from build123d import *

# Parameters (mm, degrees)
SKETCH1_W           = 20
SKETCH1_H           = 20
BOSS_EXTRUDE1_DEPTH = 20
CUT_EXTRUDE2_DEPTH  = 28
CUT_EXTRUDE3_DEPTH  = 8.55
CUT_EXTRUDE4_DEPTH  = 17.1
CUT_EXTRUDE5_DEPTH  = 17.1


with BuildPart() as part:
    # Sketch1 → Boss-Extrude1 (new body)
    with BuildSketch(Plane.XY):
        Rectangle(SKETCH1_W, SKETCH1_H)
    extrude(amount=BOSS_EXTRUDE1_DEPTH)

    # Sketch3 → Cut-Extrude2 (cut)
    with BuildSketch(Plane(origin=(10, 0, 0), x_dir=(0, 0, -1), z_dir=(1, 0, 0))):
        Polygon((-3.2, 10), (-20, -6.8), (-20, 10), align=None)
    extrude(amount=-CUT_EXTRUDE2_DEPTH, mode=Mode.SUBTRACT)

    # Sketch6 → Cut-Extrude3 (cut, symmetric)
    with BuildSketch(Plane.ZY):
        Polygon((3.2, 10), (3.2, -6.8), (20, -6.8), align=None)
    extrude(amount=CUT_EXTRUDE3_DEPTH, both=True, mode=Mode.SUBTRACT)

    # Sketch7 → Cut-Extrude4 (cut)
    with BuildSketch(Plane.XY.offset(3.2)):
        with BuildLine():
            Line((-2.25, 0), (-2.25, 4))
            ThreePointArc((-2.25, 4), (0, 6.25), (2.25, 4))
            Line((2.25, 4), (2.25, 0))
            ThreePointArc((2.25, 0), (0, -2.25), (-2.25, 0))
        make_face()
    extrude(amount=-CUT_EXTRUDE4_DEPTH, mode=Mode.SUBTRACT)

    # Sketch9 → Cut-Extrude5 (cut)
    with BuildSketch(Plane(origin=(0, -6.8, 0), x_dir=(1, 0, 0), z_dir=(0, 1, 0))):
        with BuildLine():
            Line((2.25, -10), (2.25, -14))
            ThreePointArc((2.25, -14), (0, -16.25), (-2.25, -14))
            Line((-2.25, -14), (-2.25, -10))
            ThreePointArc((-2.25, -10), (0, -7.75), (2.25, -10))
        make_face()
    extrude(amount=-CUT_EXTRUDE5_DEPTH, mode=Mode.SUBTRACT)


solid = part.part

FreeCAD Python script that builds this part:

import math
import FreeCAD as App
import Part
import Sketcher
from FreeCAD import Vector
Q = App.Units.Quantity

doc = App.newDocument("Part")
body = doc.addObject("PartDesign::Body", "Body")

# Sketch on XY plane
sketch1 = doc.addObject("Sketcher::SketchObject", "Sketch")
body.addObject(sketch1)
sketch1.AttachmentSupport = (doc.XY_Plane, [""])
sketch1.MapMode = "FlatFace"
sketch1.addGeometry([
    Part.LineSegment(Vector(-10, 10, 0), Vector(-10, -10, 0)),
    Part.LineSegment(Vector(-10, -10, 0), Vector(10, -10, 0)),
    Part.LineSegment(Vector(10, -10, 0), Vector(10, 10, 0)),
    Part.LineSegment(Vector(10, 10, 0), Vector(-10, 10, 0)),
], False)
sketch1.addConstraint([
    Sketcher.Constraint("Coincident", 0, 2, 1, 1),
    Sketcher.Constraint("Coincident", 1, 2, 2, 1),
    Sketcher.Constraint("Coincident", 2, 2, 3, 1),
    Sketcher.Constraint("Coincident", 3, 2, 0, 1),
    Sketcher.Constraint("Vertical", 0),
    Sketcher.Constraint("Horizontal", 1),
    Sketcher.Constraint("Vertical", 2),
    Sketcher.Constraint("Horizontal", 3),
    Sketcher.Constraint("Symmetric", 0, 2, 2, 2, -1, 1),
    Sketcher.Constraint("Equal", 3, 0),
    Sketcher.Constraint("DistanceX", 1, 1, 1, 2, Q("20 mm")),
])
pad1 = doc.addObject("PartDesign::Pad", "Pad")
body.addObject(pad1)
pad1.Profile = sketch1
pad1.Length = 20

# Sketch on YZ plane
sketch2 = doc.addObject("Sketcher::SketchObject", "Sketch001")
body.addObject(sketch2)
sketch2.AttachmentSupport = (doc.YZ_Plane, [""])
sketch2.MapMode = "FlatFace"
sketch2.AttachmentOffset = App.Placement(Vector(0, 0, 10), App.Rotation())
sketch2.addGeometry([
    Part.LineSegment(Vector(-7, 20, 0), Vector(10, 3, 0)),
    Part.LineSegment(Vector(10, 3, 0), Vector(10, 20, 0)),
    Part.LineSegment(Vector(10, 20, 0), Vector(-7, 20, 0)),
], False)
sketch2.addConstraint([
    Sketcher.Constraint("Coincident", 0, 2, 1, 1),
    Sketcher.Constraint("Coincident", 1, 2, 2, 1),
    Sketcher.Constraint("Coincident", 2, 2, 0, 1),
    Sketcher.Constraint("Vertical", 1),
    Sketcher.Constraint("Horizontal", 2),
    Sketcher.Constraint("Equal", 2, 1),
    Sketcher.Constraint("DistanceX", 2, 2, 2, 1, Q("16.8 mm")),
    Sketcher.Constraint("DistanceX", -1, 1, 0, 2, Q("10 mm")),
    Sketcher.Constraint("DistanceY", -1, 1, 1, 2, Q("20 mm")),
])
pocket1 = doc.addObject("PartDesign::Pocket", "Pocket")
body.addObject(pocket1)
pocket1.Profile = sketch2
pocket1.Length = 28

# Sketch on YZ plane
sketch3 = doc.addObject("Sketcher::SketchObject", "Sketch002")
body.addObject(sketch3)
sketch3.AttachmentSupport = (doc.YZ_Plane, [""])
sketch3.MapMode = "FlatFace"
sketch3.addGeometry([
    Part.LineSegment(Vector(10, 3, 0), Vector(-7, 3, 0)),
    Part.LineSegment(Vector(-7, 3, 0), Vector(-7, 20, 0)),
    Part.LineSegment(Vector(-7, 20, 0), Vector(10, 3, 0)),
], False)
sketch3.addConstraint([
    Sketcher.Constraint("Coincident", 0, 2, 1, 1),
    Sketcher.Constraint("Coincident", 1, 2, 2, 1),
    Sketcher.Constraint("Coincident", 2, 2, 0, 1),
    Sketcher.Constraint("Horizontal", 0),
    Sketcher.Constraint("Vertical", 1),
    Sketcher.Constraint("Equal", 0, 1),
    Sketcher.Constraint("DistanceX", 0, 2, 0, 1, Q("16.8 mm")),
    Sketcher.Constraint("DistanceY", -1, 1, 1, 2, Q("20 mm")),
    Sketcher.Constraint("DistanceX", -1, 1, 2, 2, Q("10 mm")),
])
pocket2 = doc.addObject("PartDesign::Pocket", "Pocket001")
body.addObject(pocket2)
pocket2.Profile = sketch3
pocket2.Length = 17.1
pocket2.Midplane = True

# Sketch on XY plane
sketch4 = doc.addObject("Sketcher::SketchObject", "Sketch003")
body.addObject(sketch4)
sketch4.AttachmentSupport = (doc.XY_Plane, [""])
sketch4.MapMode = "FlatFace"
sketch4.AttachmentOffset = App.Placement(Vector(0, 0, 3.2), App.Rotation())
sketch4.addGeometry([
    Part.LineSegment(Vector(-2.2, 4, 0), Vector(-2.2, 0, 0)),
    Part.ArcOfCircle(Part.Circle(Vector(0, 0, 0), Vector(0, 0, 1), 2.2), math.radians(180), math.radians(360)),
    Part.LineSegment(Vector(2.2, 0, 0), Vector(2.2, 4, 0)),
    Part.ArcOfCircle(Part.Circle(Vector(0, 4, 0), Vector(0, 0, 1), 2.2), math.radians(0), math.radians(180)),
], False)
sketch4.addConstraint([
    Sketcher.Constraint("Tangent", 0, 2, 1, 1),
    Sketcher.Constraint("Tangent", 1, 2, 2, 1),
    Sketcher.Constraint("Tangent", 2, 2, 3, 1),
    Sketcher.Constraint("Tangent", 3, 2, 0, 1),
    Sketcher.Constraint("Vertical", 0),
    Sketcher.Constraint("Vertical", 2),
    Sketcher.Constraint("Coincident", 1, 3, -1, 1),
    Sketcher.Constraint("DistanceY", 0, 2, 0, 1, Q("4 mm")),
    Sketcher.Constraint("Radius", 1, Q("2.25 mm")),
])
pocket3 = doc.addObject("PartDesign::Pocket", "Pocket002")
body.addObject(pocket3)
pocket3.Profile = sketch4
pocket3.Length = 17.1

# Sketch on XZ plane
sketch5 = doc.addObject("Sketcher::SketchObject", "Sketch004")
body.addObject(sketch5)
sketch5.AttachmentSupport = (doc.XZ_Plane, [""])
sketch5.MapMode = "FlatFace"
sketch5.AttachmentOffset = App.Placement(Vector(0, 0, 6.8), App.Rotation())
sketch5.addGeometry([
    Part.LineSegment(Vector(2.2, 14, 0), Vector(2.2, 10, 0)),
    Part.ArcOfCircle(Part.Circle(Vector(0, 10, 0), Vector(0, 0, 1), 2.2), math.radians(180), math.radians(360)),
    Part.LineSegment(Vector(-2.2, 10, 0), Vector(-2.2, 14, 0)),
    Part.ArcOfCircle(Part.Circle(Vector(0, 14, 0), Vector(0, 0, 1), 2.2), math.radians(0), math.radians(180)),
], False)
sketch5.addConstraint([
    Sketcher.Constraint("Tangent", 0, 2, 1, 2),
    Sketcher.Constraint("Tangent", 1, 1, 2, 1),
    Sketcher.Constraint("Tangent", 2, 2, 3, 2),
    Sketcher.Constraint("Tangent", 3, 1, 0, 1),
    Sketcher.Constraint("Vertical", 0),
    Sketcher.Constraint("Vertical", 2),
    Sketcher.Constraint("PointOnObject", 1, 3, -2),
    Sketcher.Constraint("DistanceY", 0, 2, 0, 1, Q("4 mm")),
    Sketcher.Constraint("Radius", 1, Q("2.25 mm")),
    Sketcher.Constraint("DistanceY", -1, 1, 1, 3, Q("10 mm")),
])
pocket4 = doc.addObject("PartDesign::Pocket", "Pocket003")
body.addObject(pocket4)
pocket4.Profile = sketch5
pocket4.Length = 17.1
pocket4.Reversed = True

doc.recompute()
